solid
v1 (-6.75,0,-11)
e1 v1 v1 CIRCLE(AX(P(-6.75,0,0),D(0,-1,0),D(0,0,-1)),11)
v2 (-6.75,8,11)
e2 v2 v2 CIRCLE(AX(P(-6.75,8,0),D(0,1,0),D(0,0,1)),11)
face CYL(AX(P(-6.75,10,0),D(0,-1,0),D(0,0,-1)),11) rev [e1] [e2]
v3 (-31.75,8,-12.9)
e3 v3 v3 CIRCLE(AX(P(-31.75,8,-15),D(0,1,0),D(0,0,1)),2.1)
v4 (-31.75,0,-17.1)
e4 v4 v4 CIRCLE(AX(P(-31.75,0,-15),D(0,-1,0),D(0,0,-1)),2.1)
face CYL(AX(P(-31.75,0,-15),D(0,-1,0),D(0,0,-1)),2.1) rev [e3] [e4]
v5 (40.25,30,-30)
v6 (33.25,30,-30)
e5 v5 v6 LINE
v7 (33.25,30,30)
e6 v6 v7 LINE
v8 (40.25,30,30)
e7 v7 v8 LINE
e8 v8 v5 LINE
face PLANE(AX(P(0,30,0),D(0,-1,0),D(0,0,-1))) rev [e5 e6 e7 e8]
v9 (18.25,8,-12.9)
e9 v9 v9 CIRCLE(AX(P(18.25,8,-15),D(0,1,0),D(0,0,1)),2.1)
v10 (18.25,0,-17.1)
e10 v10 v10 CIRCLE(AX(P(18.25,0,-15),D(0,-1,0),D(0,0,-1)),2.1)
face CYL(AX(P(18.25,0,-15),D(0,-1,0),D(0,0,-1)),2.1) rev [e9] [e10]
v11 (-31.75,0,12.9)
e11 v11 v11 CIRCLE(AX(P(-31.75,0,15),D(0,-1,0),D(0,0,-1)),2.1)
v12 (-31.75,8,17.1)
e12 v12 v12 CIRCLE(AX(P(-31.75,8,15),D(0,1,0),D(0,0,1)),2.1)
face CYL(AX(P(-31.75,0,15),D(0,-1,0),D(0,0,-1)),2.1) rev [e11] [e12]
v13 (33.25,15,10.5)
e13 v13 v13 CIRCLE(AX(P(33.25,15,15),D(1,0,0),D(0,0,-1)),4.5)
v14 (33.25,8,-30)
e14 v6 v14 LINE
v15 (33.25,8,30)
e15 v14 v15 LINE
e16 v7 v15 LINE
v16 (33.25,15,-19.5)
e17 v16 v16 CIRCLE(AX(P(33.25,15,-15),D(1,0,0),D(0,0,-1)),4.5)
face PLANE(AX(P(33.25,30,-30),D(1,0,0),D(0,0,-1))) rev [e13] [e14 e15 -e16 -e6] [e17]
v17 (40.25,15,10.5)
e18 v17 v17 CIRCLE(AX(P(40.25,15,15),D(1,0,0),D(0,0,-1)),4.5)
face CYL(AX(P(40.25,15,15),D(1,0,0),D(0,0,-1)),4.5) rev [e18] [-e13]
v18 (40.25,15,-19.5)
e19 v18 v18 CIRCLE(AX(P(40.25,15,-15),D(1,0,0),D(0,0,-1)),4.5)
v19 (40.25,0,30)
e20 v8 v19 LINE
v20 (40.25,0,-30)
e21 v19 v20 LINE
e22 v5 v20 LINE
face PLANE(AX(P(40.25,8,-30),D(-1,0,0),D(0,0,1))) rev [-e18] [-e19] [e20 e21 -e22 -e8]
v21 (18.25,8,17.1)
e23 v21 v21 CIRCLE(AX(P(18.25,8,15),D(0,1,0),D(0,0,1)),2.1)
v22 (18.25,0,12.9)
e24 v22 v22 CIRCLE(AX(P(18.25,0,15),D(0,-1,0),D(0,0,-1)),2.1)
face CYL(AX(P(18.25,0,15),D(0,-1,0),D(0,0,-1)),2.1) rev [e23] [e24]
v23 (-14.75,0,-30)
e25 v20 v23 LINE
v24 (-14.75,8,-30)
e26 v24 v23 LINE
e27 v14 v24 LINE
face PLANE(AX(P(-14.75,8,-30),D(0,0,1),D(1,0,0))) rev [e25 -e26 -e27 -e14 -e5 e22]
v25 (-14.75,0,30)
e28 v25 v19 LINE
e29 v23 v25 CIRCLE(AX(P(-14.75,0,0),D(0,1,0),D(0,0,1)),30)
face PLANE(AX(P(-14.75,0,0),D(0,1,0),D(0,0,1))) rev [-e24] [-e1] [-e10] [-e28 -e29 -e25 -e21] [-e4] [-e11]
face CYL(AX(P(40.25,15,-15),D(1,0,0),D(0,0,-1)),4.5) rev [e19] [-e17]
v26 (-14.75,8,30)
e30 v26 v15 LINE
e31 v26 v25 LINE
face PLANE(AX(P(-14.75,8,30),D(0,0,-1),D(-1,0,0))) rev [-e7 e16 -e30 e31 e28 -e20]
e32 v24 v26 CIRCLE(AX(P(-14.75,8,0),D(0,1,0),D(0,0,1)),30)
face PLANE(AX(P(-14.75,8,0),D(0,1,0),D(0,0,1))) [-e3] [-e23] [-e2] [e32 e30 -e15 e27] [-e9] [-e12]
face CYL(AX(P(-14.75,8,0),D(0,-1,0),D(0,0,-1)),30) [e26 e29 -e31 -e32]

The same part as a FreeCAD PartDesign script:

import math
import FreeCAD as App
import Part
import Sketcher

V = App.Vector

doc = App.newDocument("Part")
body = doc.addObject("PartDesign::Body", "Body")

sketch1 = body.newObject("Sketcher::SketchObject", "Sketch")
sketch1.AttachmentSupport = (doc.getObject("XZ_Plane"), [""])
sketch1.MapMode = "FlatFace"
sketch1.addGeometry([
    Part.LineSegment(V(40, -30, 0), V(-15, -30, 0)),
    Part.ArcOfCircle(Part.Circle(V(-15, 0, 0), V(0, 0, 1), 30), math.radians(90), math.radians(270)),
    Part.LineSegment(V(-15, 30, 0), V(40, 30, 0)),
    Part.LineSegment(V(40, 30, 0), V(40, -30, 0)),
], False)
sketch1.addConstraint([
    Sketcher.Constraint("Tangent", 0, 2, 1, 2),
    Sketcher.Constraint("Tangent", 1, 1, 2, 1),
    Sketcher.Constraint("Coincident", 2, 2, 3, 1),
    Sketcher.Constraint("Coincident", 3, 2, 0, 1),
    Sketcher.Constraint("Horizontal", 0),
    Sketcher.Constraint("Horizontal", 2),
    Sketcher.Constraint("Vertical", 3),
    Sketcher.Constraint("PointOnObject", 1, 3, -1),
    Sketcher.Constraint("Radius", 1, 30.0),
    Sketcher.Constraint("DistanceX", 0, 2, 0, 1, 55.0),
    Sketcher.Constraint("DistanceX", 1, 3, -1, 1, 14.75),
])
pad1 = body.newObject("PartDesign::Pad", "Pad")
pad1.Profile = sketch1
pad1.Length = 8
pad1.Reversed = True

sketch2 = body.newObject("Sketcher::SketchObject", "Sketch001")
sketch2.AttachmentSupport = (doc.getObject("XZ_Plane"), [""])
sketch2.MapMode = "FlatFace"
sketch2.AttachmentOffset = App.Placement(V(0, 0, -8), App.Rotation())
sketch2.addGeometry([
    Part.LineSegment(V(33, -30, 0), V(33, 30, 0)),
    Part.LineSegment(V(33, 30, 0), V(40, 30, 0)),
    Part.LineSegment(V(40, 30, 0), V(40, -30, 0)),
    Part.LineSegment(V(40, -30, 0), V(33, -30, 0)),
], False)
sketch2.addConstraint([
    Sketcher.Constraint("Coincident", 0, 2, 1, 1),
    Sketcher.Constraint("Coincident", 1, 2, 2, 1),
    Sketcher.Constraint("Coincident", 2, 2, 3, 1),
    Sketcher.Constraint("Coincident", 3, 2, 0, 1),
    Sketcher.Constraint("Vertical", 0),
    Sketcher.Constraint("Horizontal", 1),
    Sketcher.Constraint("Vertical", 2),
    Sketcher.Constraint("Horizontal", 3),
    Sketcher.Constraint("DistanceX", 1, 1, 1, 2, 7.0),
    Sketcher.Constraint("DistanceY", 0, 1, 0, 2, 60.0),
    Sketcher.Constraint("DistanceY", -1, 1, 0, 2, 30.0),
    Sketcher.Constraint("DistanceX", -1, 1, 0, 2, 33.25),
])
pad2 = body.newObject("PartDesign::Pad", "Pad001")
pad2.Profile = sketch2
pad2.Length = 22
pad2.Reversed = True

sketch3 = body.newObject("Sketcher::SketchObject", "Sketch002")
sketch3.AttachmentSupport = (doc.getObject("YZ_Plane"), [""])
sketch3.MapMode = "FlatFace"
sketch3.AttachmentOffset = App.Placement(V(0, 0, 40.25), App.Rotation())
sketch3.addGeometry([
    Part.Circle(V(15, 15, 0), V(0, 0, 1), 4.5),
    Part.Circle(V(15, -15, 0), V(0, 0, 1), 4.5),
], False)
sketch3.addConstraint([
    Sketcher.Constraint("Equal", 0, 1),
    Sketcher.Constraint("Symmetric", 0, 3, 1, 3, -1),
    Sketcher.Constraint("Diameter", 0, 9.0),
    Sketcher.Constraint("DistanceX", -1, 1, 0, 3, 15.0),
    Sketcher.Constraint("DistanceY", -1, 1, 0, 3, 15.0),
])
doc.recompute()
hole = body.newObject("PartDesign::Hole", "Hole")
hole.Profile = sketch3
hole.ThreadType = "None"
hole.Diameter = 9
hole.DepthType = "ThroughAll"

sketch4 = body.newObject("Sketcher::SketchObject", "Sketch003")
sketch4.AttachmentSupport = (doc.getObject("XZ_Plane"), [""])
sketch4.MapMode = "FlatFace"
sketch4.addGeometry([
    Part.Circle(V(-31.8, 15, 0), V(0, 0, 1), 2.1),
    Part.Circle(V(18.2, 15, 0), V(0, 0, 1), 2.1),
    Part.Circle(V(18.2, -15, 0), V(0, 0, 1), 2.1),
    Part.Circle(V(-31.8, -15, 0), V(0, 0, 1), 2.1),
], False)
sketch4.addConstraint([
    Sketcher.Constraint("Equal", 0, 1),
    Sketcher.Constraint("Equal", 1, 2),
    Sketcher.Constraint("Equal", 2, 3),
    Sketcher.Constraint("Symmetric", 1, 3, 2, 3, -1),
    Sketcher.Constraint("Symmetric", 0, 3, 3, 3, -1),
    Sketcher.Constraint("Horizontal", 0, 3, 1, 3),
    Sketcher.Constraint("Diameter", 0, 4.2),
    Sketcher.Constraint("DistanceY", -1, 1, 0, 3, 15.0),
    Sketcher.Constraint("DistanceX", 0, 3, 1, 3, 50.0),
    Sketcher.Constraint("DistanceX", 0, 3, -1, 1, 31.75),
])
doc.recompute()
hole2 = body.newObject("PartDesign::Hole", "Hole001")
hole2.Profile = sketch4
hole2.ThreadType = "None"
hole2.Diameter = 4.2
hole2.DepthType = "ThroughAll"

sketch5 = body.newObject("Sketcher::SketchObject", "Sketch004")
sketch5.AttachmentSupport = (doc.getObject("XZ_Plane"), [""])
sketch5.MapMode = "FlatFace"
sketch5.addGeometry(Part.Circle(V(-7, 0, 0), V(0, 0, 1), 11), False)
sketch5.addConstraint([
    Sketcher.Constraint("PointOnObject", 0, 3, -1),
    Sketcher.Constraint("Diameter", 0, 22.0),
    Sketcher.Constraint("DistanceX", 0, 3, -1, 1, 6.75),
])
pocket1 = body.newObject("PartDesign::Pocket", "Pocket")
pocket1.Profile = sketch5
pocket1.Length = 10

doc.recompute()
